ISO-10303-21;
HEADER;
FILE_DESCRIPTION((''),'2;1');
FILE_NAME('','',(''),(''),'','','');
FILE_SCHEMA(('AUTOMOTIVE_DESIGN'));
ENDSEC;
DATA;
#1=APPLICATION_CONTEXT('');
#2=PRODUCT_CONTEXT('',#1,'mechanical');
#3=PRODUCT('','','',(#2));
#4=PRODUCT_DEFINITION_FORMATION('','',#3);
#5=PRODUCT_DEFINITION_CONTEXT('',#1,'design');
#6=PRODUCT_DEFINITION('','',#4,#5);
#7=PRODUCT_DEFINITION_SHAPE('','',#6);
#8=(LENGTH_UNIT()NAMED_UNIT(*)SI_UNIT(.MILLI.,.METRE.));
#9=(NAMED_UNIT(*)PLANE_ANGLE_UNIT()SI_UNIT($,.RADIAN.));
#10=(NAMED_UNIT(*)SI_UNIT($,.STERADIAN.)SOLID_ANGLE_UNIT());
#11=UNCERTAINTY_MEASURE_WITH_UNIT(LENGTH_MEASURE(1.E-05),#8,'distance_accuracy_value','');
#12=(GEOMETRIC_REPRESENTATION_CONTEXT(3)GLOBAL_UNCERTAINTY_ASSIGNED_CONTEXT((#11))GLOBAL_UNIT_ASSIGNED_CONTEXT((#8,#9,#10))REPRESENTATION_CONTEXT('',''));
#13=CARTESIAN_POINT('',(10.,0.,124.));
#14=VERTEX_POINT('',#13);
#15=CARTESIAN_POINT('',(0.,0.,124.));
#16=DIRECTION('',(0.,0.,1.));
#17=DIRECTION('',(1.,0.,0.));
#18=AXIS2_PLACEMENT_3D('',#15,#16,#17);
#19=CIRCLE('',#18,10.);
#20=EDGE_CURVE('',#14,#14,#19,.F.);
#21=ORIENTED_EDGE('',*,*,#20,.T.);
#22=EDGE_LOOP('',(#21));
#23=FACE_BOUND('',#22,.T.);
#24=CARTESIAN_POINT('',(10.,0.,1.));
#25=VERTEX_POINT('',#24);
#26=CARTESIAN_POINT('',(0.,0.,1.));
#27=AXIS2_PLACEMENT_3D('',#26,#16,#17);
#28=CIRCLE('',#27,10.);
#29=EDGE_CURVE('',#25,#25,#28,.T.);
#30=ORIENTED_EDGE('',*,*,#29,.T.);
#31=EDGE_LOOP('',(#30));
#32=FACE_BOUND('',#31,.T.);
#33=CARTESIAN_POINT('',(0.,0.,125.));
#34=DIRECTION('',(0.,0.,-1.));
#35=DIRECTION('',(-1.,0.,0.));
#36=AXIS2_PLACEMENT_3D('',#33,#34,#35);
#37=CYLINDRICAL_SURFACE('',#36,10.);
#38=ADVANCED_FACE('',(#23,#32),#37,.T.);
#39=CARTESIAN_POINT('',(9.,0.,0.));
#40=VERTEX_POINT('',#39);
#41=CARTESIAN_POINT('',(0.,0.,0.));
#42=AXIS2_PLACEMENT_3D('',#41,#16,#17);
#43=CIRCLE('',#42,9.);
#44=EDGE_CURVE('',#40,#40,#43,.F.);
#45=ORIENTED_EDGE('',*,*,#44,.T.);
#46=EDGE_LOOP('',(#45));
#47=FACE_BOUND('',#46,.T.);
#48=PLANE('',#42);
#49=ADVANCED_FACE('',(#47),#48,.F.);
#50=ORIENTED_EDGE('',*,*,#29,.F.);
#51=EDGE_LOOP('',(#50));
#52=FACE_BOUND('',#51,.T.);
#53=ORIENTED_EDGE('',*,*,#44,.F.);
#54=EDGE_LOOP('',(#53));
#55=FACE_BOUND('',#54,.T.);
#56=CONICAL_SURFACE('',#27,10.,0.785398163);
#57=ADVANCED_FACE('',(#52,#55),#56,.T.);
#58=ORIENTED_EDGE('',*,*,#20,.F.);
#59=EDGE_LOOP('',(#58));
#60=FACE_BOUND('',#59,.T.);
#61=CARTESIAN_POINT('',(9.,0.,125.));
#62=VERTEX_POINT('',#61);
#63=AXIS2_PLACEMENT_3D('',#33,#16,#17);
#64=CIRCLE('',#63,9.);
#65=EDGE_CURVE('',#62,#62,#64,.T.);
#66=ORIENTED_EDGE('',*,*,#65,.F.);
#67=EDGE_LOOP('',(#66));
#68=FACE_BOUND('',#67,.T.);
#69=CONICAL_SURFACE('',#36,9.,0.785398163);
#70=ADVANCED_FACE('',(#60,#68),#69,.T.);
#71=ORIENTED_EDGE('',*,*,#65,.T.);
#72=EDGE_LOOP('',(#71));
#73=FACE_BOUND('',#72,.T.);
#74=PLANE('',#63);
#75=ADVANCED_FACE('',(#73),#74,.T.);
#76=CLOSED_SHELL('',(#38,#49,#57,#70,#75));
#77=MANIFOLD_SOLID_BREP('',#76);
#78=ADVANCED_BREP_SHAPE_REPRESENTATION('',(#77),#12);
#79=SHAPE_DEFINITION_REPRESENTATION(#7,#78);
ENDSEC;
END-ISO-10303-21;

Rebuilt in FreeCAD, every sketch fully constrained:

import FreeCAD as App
import Part
import Sketcher
from FreeCAD import Vector
Q = App.Units.Quantity


def edges_at(feature, points):
    """Names of the edges that pass closest to the given points."""
    edges = feature.Shape.Edges
    near = lambda p: min(range(len(edges)), key=lambda i: edges[i].distToShape(Part.Vertex(*p))[0])
    return sorted({f"Edge{near(p) + 1}" for p in points})

doc = App.newDocument("Part")
body = doc.addObject("PartDesign::Body", "Body")

sketch1 = body.newObject("Sketcher::SketchObject", "Sketch")
sketch1.AttachmentSupport = (doc.getObject("XY_Plane"), [""])
sketch1.MapMode = "FlatFace"
sketch1.addGeometry(Part.Circle(Vector(0, 0, 0), Vector(0, 0, 1), 10), False)
sketch1.addConstraint([
    Sketcher.Constraint("Coincident", 0, 3, -1, 1),
    Sketcher.Constraint("Diameter", 0, Q("20 mm")),
])
pad1 = body.newObject("PartDesign::Pad", "Pad")
pad1.Profile = sketch1
pad1.Length = 125
doc.recompute()

chamfer = body.newObject("PartDesign::Chamfer", "Chamfer")
chamfer.Base = (pad1, edges_at(pad1, [(-10, 0, 0), (-10, 0, 125)]))
chamfer.Size = 1

doc.recompute()
